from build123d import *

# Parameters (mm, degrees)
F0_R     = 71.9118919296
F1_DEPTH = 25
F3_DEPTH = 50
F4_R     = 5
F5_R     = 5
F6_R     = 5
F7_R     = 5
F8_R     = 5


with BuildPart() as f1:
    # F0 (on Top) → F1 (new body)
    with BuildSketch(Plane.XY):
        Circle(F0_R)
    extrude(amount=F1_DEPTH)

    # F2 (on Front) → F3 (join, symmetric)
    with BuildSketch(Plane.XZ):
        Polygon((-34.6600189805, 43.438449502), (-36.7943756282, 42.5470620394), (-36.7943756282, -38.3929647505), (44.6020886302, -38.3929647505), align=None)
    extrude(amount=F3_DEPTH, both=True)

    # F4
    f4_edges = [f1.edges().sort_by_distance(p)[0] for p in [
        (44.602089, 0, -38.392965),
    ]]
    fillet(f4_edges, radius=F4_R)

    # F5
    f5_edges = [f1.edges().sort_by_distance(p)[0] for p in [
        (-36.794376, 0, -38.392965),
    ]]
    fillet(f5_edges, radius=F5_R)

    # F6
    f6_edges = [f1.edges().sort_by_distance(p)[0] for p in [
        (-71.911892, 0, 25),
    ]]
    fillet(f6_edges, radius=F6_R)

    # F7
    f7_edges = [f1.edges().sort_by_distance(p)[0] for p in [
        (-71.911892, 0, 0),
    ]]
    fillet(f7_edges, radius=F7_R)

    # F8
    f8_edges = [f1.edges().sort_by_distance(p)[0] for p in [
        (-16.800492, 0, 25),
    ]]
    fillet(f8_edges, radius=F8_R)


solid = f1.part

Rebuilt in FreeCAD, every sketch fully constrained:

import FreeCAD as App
import Part
import Sketcher


def edges_at(feature, points):
    """Names of the edges that pass closest to the given points."""
    edges = feature.Shape.Edges
    near = lambda p: min(range(len(edges)), key=lambda i: edges[i].distToShape(Part.Vertex(*p))[0])
    return sorted({f"Edge{near(p) + 1}" for p in points})

doc = App.newDocument("Part")
params = doc.addObject("Spreadsheet::Sheet", "Params")
for row, (alias, value) in enumerate([
    ("pad1_length", "25 mm"),
    ("pad2_length", "100 mm"),
    ("fillet_radius", "5 mm"),
    ("fillet2_radius", "5 mm"),
    ("fillet3_radius", "5 mm"),
    ("fillet4_radius", "5 mm"),
    ("fillet5_radius", "5 mm"),
], start=1):
    params.set(f"A{row}", alias)
    params.set(f"B{row}", "=" + value)
    params.setAlias(f"B{row}", alias)

body = doc.addObject("PartDesign::Body", "Body")

# Sketch on XY plane
sketch1 = body.newObject("Sketcher::SketchObject", "Sketch")
sketch1.AttachmentSupport = (doc.getObject("XY_Plane"), [""])
sketch1.MapMode = "FlatFace"
sketch1.addGeometry(Part.Circle(App.Vector(0, 0, 0), App.Vector(0, 0, 1), 72), False)
sketch1.addConstraint([
    Sketcher.Constraint("Coincident", 0, 3, -1, 1),
    Sketcher.Constraint("Diameter", 0, 143.823784),
])
pad1 = body.newObject("PartDesign::Pad", "Pad")
pad1.Profile = sketch1
pad1.setExpression("Length", "Params.pad1_length")

# Sketch on XZ plane
sketch2 = body.newObject("Sketcher::SketchObject", "Sketch001")
sketch2.AttachmentSupport = (doc.getObject("XZ_Plane"), [""])
sketch2.MapMode = "FlatFace"
sketch2.addGeometry([
    Part.LineSegment(App.Vector(-34.7, 43.4, 0), App.Vector(-36.8, 42.5, 0)),
    Part.LineSegment(App.Vector(-36.8, 42.5, 0), App.Vector(-36.8, -38.4, 0)),
    Part.LineSegment(App.Vector(-36.8, -38.4, 0), App.Vector(44.6, -38.4, 0)),
    Part.LineSegment(App.Vector(44.6, -38.4, 0), App.Vector(-34.7, 43.4, 0)),
], False)
sketch2.addConstraint([
    Sketcher.Constraint("Coincident", 0, 2, 1, 1),
    Sketcher.Constraint("Coincident", 1, 2, 2, 1),
    Sketcher.Constraint("Coincident", 2, 2, 3, 1),
    Sketcher.Constraint("Coincident", 3, 2, 0, 1),
    Sketcher.Constraint("Vertical", 1),
    Sketcher.Constraint("Horizontal", 2),
    Sketcher.Constraint("Distance", 3, 113.924809),
    Sketcher.Constraint("DistanceX", 2, 1, 2, 2, 81.396464),
    Sketcher.Constraint("DistanceY", 1, 2, 1, 1, 80.940027),
    Sketcher.Constraint("DistanceX", -1, 1, 2, 2, 44.602089),
    Sketcher.Constraint("DistanceX", 3, 2, -1, 1, 34.660019),
    Sketcher.Constraint("DistanceY", -1, 1, 3, 2, 43.43845),
])
pad2 = body.newObject("PartDesign::Pad", "Pad001")
pad2.Profile = sketch2
pad2.setExpression("Length", "Params.pad2_length")
pad2.Midplane = True
doc.recompute()

fillet = body.newObject("PartDesign::Fillet", "Fillet")
fillet.Base = (pad2, edges_at(pad2, [(44.602, 0, -38.393)]))
fillet.setExpression("Radius", "Params.fillet_radius")
doc.recompute()

fillet2 = body.newObject("PartDesign::Fillet", "Fillet001")
fillet2.Base = (fillet, edges_at(fillet, [(-36.794, 0, -38.393)]))
fillet2.setExpression("Radius", "Params.fillet2_radius")
doc.recompute()

fillet3 = body.newObject("PartDesign::Fillet", "Fillet002")
fillet3.Base = (fillet2, edges_at(fillet2, [(-71.912, 0, 25)]))
fillet3.setExpression("Radius", "Params.fillet3_radius")
doc.recompute()

fillet4 = body.newObject("PartDesign::Fillet", "Fillet003")
fillet4.Base = (fillet3, edges_at(fillet3, [(-71.912, 0, 0)]))
fillet4.setExpression("Radius", "Params.fillet4_radius")
doc.recompute()

fillet5 = body.newObject("PartDesign::Fillet", "Fillet004")
fillet5.Base = (fillet4, edges_at(fillet4, [(-16.8, 0, 25)]))
fillet5.setExpression("Radius", "Params.fillet5_radius")

doc.recompute()
